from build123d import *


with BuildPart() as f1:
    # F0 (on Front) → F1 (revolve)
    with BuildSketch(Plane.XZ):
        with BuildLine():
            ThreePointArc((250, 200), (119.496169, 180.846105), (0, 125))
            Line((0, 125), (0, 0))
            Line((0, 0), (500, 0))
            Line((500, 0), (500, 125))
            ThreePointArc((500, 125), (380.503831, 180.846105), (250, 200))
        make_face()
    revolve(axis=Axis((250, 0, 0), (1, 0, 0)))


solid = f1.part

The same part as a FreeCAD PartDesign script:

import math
import FreeCAD as App
import Part
import Sketcher

V = App.Vector

doc = App.newDocument("Part")
body = doc.addObject("PartDesign::Body", "Body")

# Sketch on XZ plane
sketch1 = body.newObject("Sketcher::SketchObject", "Sketch")
sketch1.AttachmentSupport = (doc.getObject("XZ_Plane"), [""])
sketch1.MapMode = "FlatFace"
sketch1.addGeometry([
    Part.ArcOfCircle(Part.Circle(V(249.999998, -254.166659, 0), V(0, 0, 1), 454.166659), math.radians(90), math.radians(123.398489)),  # 0
    Part.LineSegment(V(0, 125, 0), V(0, 0, 0)),  # 1
    Part.LineSegment(V(0, 0, 0), V(500, 0, 0)),  # 2
    Part.LineSegment(V(500, 0, 0), V(500, 125, 0)),  # 3
    Part.ArcOfCircle(Part.Circle(V(250.000002, -254.166659, 0), V(0, 0, 1), 454.166659), math.radians(56.601511), math.radians(90)),  # 4
], False)
sketch1.addConstraint([
    Sketcher.Constraint("Coincident", 0, 2, 1, 1),
    Sketcher.Constraint("Coincident", 1, 2, 2, 1),
    Sketcher.Constraint("Coincident", 2, 2, 3, 1),
    Sketcher.Constraint("Coincident", 3, 2, 4, 1),
    Sketcher.Constraint("Tangent", 4, 2, 0, 1),
    Sketcher.Constraint("Vertical", 1),
    Sketcher.Constraint("Horizontal", 2),
    Sketcher.Constraint("Vertical", 3),
    Sketcher.Constraint("Coincident", 1, 2, -1, 1),
    Sketcher.Constraint("Equal", 0, 4),
    Sketcher.Constraint("Horizontal", 0, 2, 3, 2),
    Sketcher.Constraint("DistanceX", 2, 1, 2, 2, 500.0),
    Sketcher.Constraint("DistanceY", 1, 2, 1, 1, 125.0),
    Sketcher.Constraint("DistanceX", -1, 1, 4, 2, 250.0),
    Sketcher.Constraint("DistanceY", -1, 1, 4, 2, 200.0),
])
revolution = body.newObject("PartDesign::Revolution", "Revolution")
revolution.Profile = sketch1
revolution.ReferenceAxis = (sketch1, ["H_Axis"])
revolution.Angle = 360

doc.recompute()
